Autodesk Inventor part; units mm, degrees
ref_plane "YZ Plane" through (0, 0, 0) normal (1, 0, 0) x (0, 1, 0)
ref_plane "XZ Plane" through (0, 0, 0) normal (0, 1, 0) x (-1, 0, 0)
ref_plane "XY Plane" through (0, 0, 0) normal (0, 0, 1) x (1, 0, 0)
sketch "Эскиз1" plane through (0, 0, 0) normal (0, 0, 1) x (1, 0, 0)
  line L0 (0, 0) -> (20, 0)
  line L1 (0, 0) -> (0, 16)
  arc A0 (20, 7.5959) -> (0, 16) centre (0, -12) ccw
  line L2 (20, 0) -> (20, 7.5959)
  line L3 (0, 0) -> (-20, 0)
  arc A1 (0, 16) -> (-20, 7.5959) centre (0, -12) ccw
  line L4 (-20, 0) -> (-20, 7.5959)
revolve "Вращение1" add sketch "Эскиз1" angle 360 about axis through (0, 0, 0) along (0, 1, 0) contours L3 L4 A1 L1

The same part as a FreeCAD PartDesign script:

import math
import FreeCAD as App
import Part
import Sketcher
from FreeCAD import Vector

doc = App.newDocument("Part")
body = doc.addObject("PartDesign::Body", "Body")

# Sketch on XY plane
sketch1 = doc.addObject("Sketcher::SketchObject", "Sketch")
body.addObject(sketch1)
sketch1.AttachmentSupport = (doc.XY_Plane, [""])
sketch1.MapMode = "FlatFace"
sketch1.addGeometry([
    Part.LineSegment(Vector(-20, 0, 0), Vector(0, 0, 0)),
    Part.LineSegment(Vector(0, 0, 0), Vector(0, 16, 0)),
    Part.ArcOfCircle(Part.Circle(Vector(0, -12, 0), Vector(0, 0, 1), 28), math.radians(90), math.radians(136)),
    Part.LineSegment(Vector(-20, 8, 0), Vector(-20, 0, 0)),
], False)
sketch1.addConstraint([
    Sketcher.Constraint("Coincident", 0, 2, 1, 1),
    Sketcher.Constraint("Coincident", 1, 2, 2, 1),
    Sketcher.Constraint("Coincident", 2, 2, 3, 1),
    Sketcher.Constraint("Coincident", 3, 2, 0, 1),
    Sketcher.Constraint("Horizontal", 0),
    Sketcher.Constraint("Vertical", 1),
    Sketcher.Constraint("Vertical", 3),
    Sketcher.Constraint("Coincident", 0, 2, -1, 1),
    Sketcher.Constraint("PointOnObject", 2, 3, -2),
    Sketcher.Constraint("Radius", 2, 28.0),
    Sketcher.Constraint("DistanceX", 0, 1, 0, 2, 20.0),
    Sketcher.Constraint("DistanceY", 1, 1, 1, 2, 16.0),
])
revolution = doc.addObject("PartDesign::Revolution", "Revolution")
body.addObject(revolution)
revolution.Profile = sketch1
revolution.ReferenceAxis = (sketch1, ["V_Axis"])
revolution.Angle = 360

doc.recompute()
